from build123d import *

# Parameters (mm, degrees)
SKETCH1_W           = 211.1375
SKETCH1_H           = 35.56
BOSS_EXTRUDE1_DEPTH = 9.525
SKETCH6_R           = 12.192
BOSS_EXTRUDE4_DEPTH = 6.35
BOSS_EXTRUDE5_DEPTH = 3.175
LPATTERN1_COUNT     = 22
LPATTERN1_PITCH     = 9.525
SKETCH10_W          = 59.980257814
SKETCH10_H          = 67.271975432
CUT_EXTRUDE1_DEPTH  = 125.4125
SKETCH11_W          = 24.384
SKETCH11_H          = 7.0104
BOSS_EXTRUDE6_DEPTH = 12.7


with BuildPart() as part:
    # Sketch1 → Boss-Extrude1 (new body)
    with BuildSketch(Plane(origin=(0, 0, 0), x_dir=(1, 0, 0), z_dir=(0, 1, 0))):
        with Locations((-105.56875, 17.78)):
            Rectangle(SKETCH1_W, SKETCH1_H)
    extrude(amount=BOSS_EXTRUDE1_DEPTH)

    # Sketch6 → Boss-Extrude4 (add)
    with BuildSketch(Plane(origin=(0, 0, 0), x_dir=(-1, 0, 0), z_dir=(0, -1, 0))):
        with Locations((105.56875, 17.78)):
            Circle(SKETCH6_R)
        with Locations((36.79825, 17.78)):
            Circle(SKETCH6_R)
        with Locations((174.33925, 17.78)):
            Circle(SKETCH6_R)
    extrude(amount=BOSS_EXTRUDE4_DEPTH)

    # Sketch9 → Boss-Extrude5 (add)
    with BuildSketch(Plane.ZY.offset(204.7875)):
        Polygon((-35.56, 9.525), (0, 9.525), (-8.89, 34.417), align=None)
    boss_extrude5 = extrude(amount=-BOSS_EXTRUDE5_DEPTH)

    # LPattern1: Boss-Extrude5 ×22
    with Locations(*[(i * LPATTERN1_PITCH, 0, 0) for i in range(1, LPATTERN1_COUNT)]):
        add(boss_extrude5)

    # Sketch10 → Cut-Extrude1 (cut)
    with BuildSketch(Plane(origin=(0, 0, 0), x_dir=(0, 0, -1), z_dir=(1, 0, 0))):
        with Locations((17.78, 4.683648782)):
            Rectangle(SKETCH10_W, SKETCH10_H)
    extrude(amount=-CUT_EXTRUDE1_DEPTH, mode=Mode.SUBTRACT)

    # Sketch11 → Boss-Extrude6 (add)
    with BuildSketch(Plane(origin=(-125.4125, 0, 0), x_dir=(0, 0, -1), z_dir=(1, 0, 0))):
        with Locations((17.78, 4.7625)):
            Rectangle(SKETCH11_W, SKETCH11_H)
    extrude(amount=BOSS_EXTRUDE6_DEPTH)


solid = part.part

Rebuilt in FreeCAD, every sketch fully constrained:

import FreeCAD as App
import Part
import Sketcher
Q = App.Units.Quantity

doc = App.newDocument("Part")
body = doc.addObject("PartDesign::Body", "Body")

# Sketch on XZ plane
sketch1 = doc.addObject("Sketcher::SketchObject", "Sketch")
body.addObject(sketch1)
sketch1.AttachmentSupport = (doc.XZ_Plane, [""])
sketch1.MapMode = "FlatFace"
sketch1.addGeometry([
    Part.LineSegment(App.Vector(-211, -36, 0), App.Vector(-211, 0, 0)),
    Part.LineSegment(App.Vector(-211, 0, 0), App.Vector(0, 0, 0)),
    Part.LineSegment(App.Vector(0, 0, 0), App.Vector(0, -36, 0)),
    Part.LineSegment(App.Vector(0, -36, 0), App.Vector(-211, -36, 0)),
], False)
sketch1.addConstraint([
    Sketcher.Constraint("Coincident", 0, 2, 1, 1),
    Sketcher.Constraint("Coincident", 1, 2, 2, 1),
    Sketcher.Constraint("Coincident", 2, 2, 3, 1),
    Sketcher.Constraint("Coincident", 3, 2, 0, 1),
    Sketcher.Constraint("Vertical", 0),
    Sketcher.Constraint("Horizontal", 1),
    Sketcher.Constraint("Vertical", 2),
    Sketcher.Constraint("Horizontal", 3),
    Sketcher.Constraint("Coincident", 1, 2, -1, 1),
    Sketcher.Constraint("DistanceY", 0, 1, 0, 2, Q("1.4 in")),
    Sketcher.Constraint("DistanceX", 1, 1, 1, 2, Q("8.3125 in")),
])
pad1 = doc.addObject("PartDesign::Pad", "Pad")
body.addObject(pad1)
pad1.Profile = sketch1
pad1.Length = Q("0.375 in")
pad1.Reversed = True

# Sketch on XZ plane
sketch2 = doc.addObject("Sketcher::SketchObject", "Sketch001")
body.addObject(sketch2)
sketch2.AttachmentSupport = (doc.XZ_Plane, [""])
sketch2.MapMode = "FlatFace"
sketch2.addGeometry([
    Part.Circle(App.Vector(-106, -18, 0), App.Vector(0, 0, 1), 12),
    Part.Circle(App.Vector(-37, -18, 0), App.Vector(0, 0, 1), 12),
    Part.Circle(App.Vector(-174, -18, 0), App.Vector(0, 0, 1), 12),
], False)
sketch2.addConstraint([
    Sketcher.Constraint("Equal", 0, 1),
    Sketcher.Constraint("Equal", 1, 2),
    Sketcher.Constraint("Horizontal", 0, 3, 1, 3),
    Sketcher.Constraint("Horizontal", 1, 3, 2, 3),
    Sketcher.Constraint("Diameter", 0, Q("0.96 in")),
    Sketcher.Constraint("DistanceY", 0, 3, -1, 1, Q("0.7 in")),
    Sketcher.Constraint("DistanceX", 0, 3, -1, 1, Q("4.15625 in")),
    Sketcher.Constraint("DistanceX", 2, 3, 1, 3, Q("5.415 in")),
    Sketcher.Constraint("DistanceX", 0, 3, 1, 3, Q("2.7075 in")),
])
pad2 = doc.addObject("PartDesign::Pad", "Pad001")
body.addObject(pad2)
pad2.Profile = sketch2
pad2.Length = Q("0.25 in")

# Sketch on YZ plane
sketch3 = doc.addObject("Sketcher::SketchObject", "Sketch002")
body.addObject(sketch3)
sketch3.AttachmentSupport = (doc.YZ_Plane, [""])
sketch3.MapMode = "FlatFace"
sketch3.AttachmentOffset = App.Placement(App.Vector(0, 0, -8.0625 * 25.4), App.Rotation())
sketch3.addGeometry([
    Part.LineSegment(App.Vector(10, -36, 0), App.Vector(10, 0, 0)),
    Part.LineSegment(App.Vector(10, 0, 0), App.Vector(34, -9, 0)),
    Part.LineSegment(App.Vector(34, -9, 0), App.Vector(10, -36, 0)),
], False)
sketch3.addConstraint([
    Sketcher.Constraint("Coincident", 0, 2, 1, 1),
    Sketcher.Constraint("Coincident", 1, 2, 2, 1),
    Sketcher.Constraint("Coincident", 2, 2, 0, 1),
    Sketcher.Constraint("Vertical", 0),
    Sketcher.Constraint("PointOnObject", 0, 2, -1),
    Sketcher.Constraint("DistanceY", 0, 1, 0, 2, Q("1.4 in")),
    Sketcher.Constraint("DistanceY", 1, 2, -1, 1, Q("0.35 in")),
    Sketcher.Constraint("DistanceX", 0, 2, 1, 2, Q("0.98 in")),
    Sketcher.Constraint("DistanceX", -1, 1, 0, 2, Q("0.375 in")),
])
pad3 = doc.addObject("PartDesign::Pad", "Pad002")
body.addObject(pad3)
pad3.Profile = sketch3
pad3.Length = Q("0.125 in")
doc.recompute()

linearpattern = doc.addObject("PartDesign::LinearPattern", "LinearPattern")
body.addObject(linearpattern)
linearpattern.Originals = [pad3]
linearpattern.Direction = (doc.X_Axis, [""])
linearpattern.Mode = "offset"
linearpattern.Offset = Q("0.375 in")
linearpattern.Occurrences = 22
body.Tip = linearpattern

# Sketch on YZ plane
sketch4 = doc.addObject("Sketcher::SketchObject", "Sketch003")
body.addObject(sketch4)
sketch4.AttachmentSupport = (doc.YZ_Plane, [""])
sketch4.MapMode = "FlatFace"
sketch4.addGeometry([
    Part.LineSegment(App.Vector(38, 12, 0), App.Vector(-29, 12, 0)),
    Part.LineSegment(App.Vector(-29, 12, 0), App.Vector(-29, -48, 0)),
    Part.LineSegment(App.Vector(-29, -48, 0), App.Vector(38, -48, 0)),
    Part.LineSegment(App.Vector(38, -48, 0), App.Vector(38, 12, 0)),
], False)
sketch4.addConstraint([
    Sketcher.Constraint("Coincident", 0, 2, 1, 1),
    Sketcher.Constraint("Coincident", 1, 2, 2, 1),
    Sketcher.Constraint("Coincident", 2, 2, 3, 1),
    Sketcher.Constraint("Coincident", 3, 2, 0, 1),
    Sketcher.Constraint("Horizontal", 0),
    Sketcher.Constraint("Vertical", 1),
    Sketcher.Constraint("Horizontal", 2),
    Sketcher.Constraint("Vertical", 3),
    Sketcher.Constraint("DistanceX", 0, 2, 0, 1, 67.271975),
    Sketcher.Constraint("DistanceY", 1, 2, 1, 1, 59.980258),
    Sketcher.Constraint("DistanceX", 0, 2, -1, 1, 28.952339),
    Sketcher.Constraint("DistanceY", -1, 1, 0, 2, 12.210129),
])
pocket1 = doc.addObject("PartDesign::Pocket", "Pocket")
body.addObject(pocket1)
pocket1.Profile = sketch4
pocket1.Length = Q("4.9375 in")

# Sketch on YZ plane
sketch5 = doc.addObject("Sketcher::SketchObject", "Sketch004")
body.addObject(sketch5)
sketch5.AttachmentSupport = (doc.YZ_Plane, [""])
sketch5.MapMode = "FlatFace"
sketch5.AttachmentOffset = App.Placement(App.Vector(0, 0, -4.9375 * 25.4), App.Rotation())
sketch5.addGeometry([
    Part.LineSegment(App.Vector(8, -6, 0), App.Vector(1, -6, 0)),
    Part.LineSegment(App.Vector(1, -6, 0), App.Vector(1, -30, 0)),
    Part.LineSegment(App.Vector(1, -30, 0), App.Vector(8, -30, 0)),
    Part.LineSegment(App.Vector(8, -30, 0), App.Vector(8, -6, 0)),
], False)
sketch5.addConstraint([
    Sketcher.Constraint("Coincident", 0, 2, 1, 1),
    Sketcher.Constraint("Coincident", 1, 2, 2, 1),
    Sketcher.Constraint("Coincident", 2, 2, 3, 1),
    Sketcher.Constraint("Coincident", 3, 2, 0, 1),
    Sketcher.Constraint("Horizontal", 0),
    Sketcher.Constraint("Vertical", 1),
    Sketcher.Constraint("Horizontal", 2),
    Sketcher.Constraint("Vertical", 3),
    Sketcher.Constraint("DistanceY", 1, 2, 1, 1, Q("0.96 in")),
    Sketcher.Constraint("DistanceX", 0, 2, 0, 1, Q("0.276 in")),
    Sketcher.Constraint("DistanceY", 0, 2, -1, 1, Q("0.22 in")),
    Sketcher.Constraint("DistanceX", -1, 1, 0, 2, Q("0.0495 in")),
])
pad4 = doc.addObject("PartDesign::Pad", "Pad003")
body.addObject(pad4)
pad4.Profile = sketch5
pad4.Length = Q("0.5 in")

doc.recompute()
